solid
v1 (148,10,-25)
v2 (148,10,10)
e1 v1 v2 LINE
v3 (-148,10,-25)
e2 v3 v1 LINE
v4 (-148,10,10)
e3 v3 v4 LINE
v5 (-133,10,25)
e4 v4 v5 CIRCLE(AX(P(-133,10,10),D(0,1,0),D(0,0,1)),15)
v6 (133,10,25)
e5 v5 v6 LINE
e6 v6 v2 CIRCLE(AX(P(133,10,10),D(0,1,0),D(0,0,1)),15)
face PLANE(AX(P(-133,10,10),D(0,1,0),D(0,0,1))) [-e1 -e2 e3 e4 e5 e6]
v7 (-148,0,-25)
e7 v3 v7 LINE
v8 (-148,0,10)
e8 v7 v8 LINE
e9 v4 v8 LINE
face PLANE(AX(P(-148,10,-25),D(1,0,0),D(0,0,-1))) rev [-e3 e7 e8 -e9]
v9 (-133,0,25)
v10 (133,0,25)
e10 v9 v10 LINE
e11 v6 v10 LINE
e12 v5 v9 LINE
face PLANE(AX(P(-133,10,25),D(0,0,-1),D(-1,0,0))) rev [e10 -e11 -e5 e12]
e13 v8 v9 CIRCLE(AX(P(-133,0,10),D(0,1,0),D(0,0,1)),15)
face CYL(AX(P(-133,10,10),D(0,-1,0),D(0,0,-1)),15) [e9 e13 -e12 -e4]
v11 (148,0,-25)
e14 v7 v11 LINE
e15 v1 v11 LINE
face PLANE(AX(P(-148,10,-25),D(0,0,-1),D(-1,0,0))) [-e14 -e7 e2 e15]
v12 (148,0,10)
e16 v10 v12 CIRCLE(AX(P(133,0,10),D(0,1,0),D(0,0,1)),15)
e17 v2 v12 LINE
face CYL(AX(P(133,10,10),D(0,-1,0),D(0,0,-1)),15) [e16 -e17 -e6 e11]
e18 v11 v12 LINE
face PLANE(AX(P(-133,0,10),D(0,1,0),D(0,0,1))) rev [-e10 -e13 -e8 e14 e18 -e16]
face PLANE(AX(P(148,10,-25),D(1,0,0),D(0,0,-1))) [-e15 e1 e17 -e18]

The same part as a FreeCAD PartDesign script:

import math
import FreeCAD as App
import Part
import Sketcher
from FreeCAD import Vector

doc = App.newDocument("Part")
body = doc.addObject("PartDesign::Body", "Body")

# Sketch on XZ plane
sketch1 = body.newObject("Sketcher::SketchObject", "Sketch")
sketch1.AttachmentSupport = (doc.getObject("XZ_Plane"), [""])
sketch1.MapMode = "FlatFace"
sketch1.addGeometry(Part.LineSegment(Vector(148, -25, 0), Vector(-148, -25, 0)), False)
sketch1.addGeometry(Part.LineSegment(Vector(-148, -25, 0), Vector(-148, 10, 0)), False)
sketch1.addGeometry(Part.ArcOfCircle(Part.Circle(Vector(-133, 10, 0), Vector(0, 0, 1), 15), math.radians(90), math.radians(180)), False)
sketch1.addGeometry(Part.LineSegment(Vector(-133, 25, 0), Vector(133, 25, 0)), False)
sketch1.addGeometry(Part.ArcOfCircle(Part.Circle(Vector(133, 10, 0), Vector(0, 0, 1), 15), math.radians(0), math.radians(90)), False)
sketch1.addGeometry(Part.LineSegment(Vector(148, 10, 0), Vector(148, -25, 0)), False)
sketch1.addConstraint(Sketcher.Constraint("Coincident", 0, 2, 1, 1))
sketch1.addConstraint(Sketcher.Constraint("Tangent", 1, 2, 2, 2))
sketch1.addConstraint(Sketcher.Constraint("Tangent", 2, 1, 3, 1))
sketch1.addConstraint(Sketcher.Constraint("Tangent", 3, 2, 4, 2))
sketch1.addConstraint(Sketcher.Constraint("Tangent", 4, 1, 5, 1))
sketch1.addConstraint(Sketcher.Constraint("Coincident", 5, 2, 0, 1))
sketch1.addConstraint(Sketcher.Constraint("Horizontal", 0))
sketch1.addConstraint(Sketcher.Constraint("Vertical", 1))
sketch1.addConstraint(Sketcher.Constraint("Horizontal", 3))
sketch1.addConstraint(Sketcher.Constraint("Vertical", 5))
sketch1.addConstraint(Sketcher.Constraint("Equal", 2, 4))
sketch1.addConstraint(Sketcher.Constraint("Radius", 2, 15.0))
sketch1.addConstraint(Sketcher.Constraint("DistanceX", 0, 2, 0, 1, 296.0))
sketch1.addConstraint(Sketcher.Constraint("DistanceY", 1, 1, 1, 2, 35.0))
sketch1.addConstraint(Sketcher.Constraint("DistanceX", 2, 3, -1, 1, 133.0))
sketch1.addConstraint(Sketcher.Constraint("DistanceY", -1, 1, 2, 3, 10.0))
pad1 = body.newObject("PartDesign::Pad", "Pad")
pad1.Profile = sketch1
pad1.Length = 10
pad1.Reversed = True

doc.recompute()
